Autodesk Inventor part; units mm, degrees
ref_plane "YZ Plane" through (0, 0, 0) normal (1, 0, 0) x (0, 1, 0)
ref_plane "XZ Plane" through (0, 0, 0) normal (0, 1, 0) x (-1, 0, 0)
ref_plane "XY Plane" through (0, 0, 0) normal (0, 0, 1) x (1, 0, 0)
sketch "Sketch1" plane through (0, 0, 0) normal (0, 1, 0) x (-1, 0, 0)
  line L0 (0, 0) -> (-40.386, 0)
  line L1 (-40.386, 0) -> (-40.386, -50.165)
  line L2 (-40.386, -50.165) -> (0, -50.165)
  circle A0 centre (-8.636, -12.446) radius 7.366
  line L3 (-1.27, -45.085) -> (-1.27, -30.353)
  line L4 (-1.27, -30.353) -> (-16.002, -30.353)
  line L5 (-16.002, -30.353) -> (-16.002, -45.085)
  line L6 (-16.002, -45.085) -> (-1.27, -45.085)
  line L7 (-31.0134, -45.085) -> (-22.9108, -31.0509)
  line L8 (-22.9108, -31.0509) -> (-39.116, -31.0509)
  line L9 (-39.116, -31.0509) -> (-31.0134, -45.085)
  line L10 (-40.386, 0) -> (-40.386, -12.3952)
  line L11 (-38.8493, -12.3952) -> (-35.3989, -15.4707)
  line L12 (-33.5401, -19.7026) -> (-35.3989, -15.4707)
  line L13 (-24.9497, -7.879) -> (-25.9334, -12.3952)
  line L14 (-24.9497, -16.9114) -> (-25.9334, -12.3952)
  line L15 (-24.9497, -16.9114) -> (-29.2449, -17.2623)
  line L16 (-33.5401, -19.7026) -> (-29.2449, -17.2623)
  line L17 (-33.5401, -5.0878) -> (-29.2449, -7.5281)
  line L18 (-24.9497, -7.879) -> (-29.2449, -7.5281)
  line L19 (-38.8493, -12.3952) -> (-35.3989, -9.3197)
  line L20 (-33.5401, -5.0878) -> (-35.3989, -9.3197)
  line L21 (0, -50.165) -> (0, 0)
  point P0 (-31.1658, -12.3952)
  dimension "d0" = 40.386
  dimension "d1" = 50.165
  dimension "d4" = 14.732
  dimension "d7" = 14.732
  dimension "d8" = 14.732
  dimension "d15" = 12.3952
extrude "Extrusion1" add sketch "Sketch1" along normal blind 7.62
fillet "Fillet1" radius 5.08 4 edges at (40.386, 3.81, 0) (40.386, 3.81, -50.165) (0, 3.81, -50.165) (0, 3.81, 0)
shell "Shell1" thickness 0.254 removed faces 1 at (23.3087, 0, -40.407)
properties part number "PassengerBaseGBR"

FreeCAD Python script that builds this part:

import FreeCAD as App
import Part
import Sketcher
Q = App.Units.Quantity


def edges_at(feature, points):
    """Names of the edges that pass closest to the given points."""
    edges = feature.Shape.Edges
    near = lambda p: min(range(len(edges)), key=lambda i: edges[i].distToShape(Part.Vertex(*p))[0])
    return sorted({f"Edge{near(p) + 1}" for p in points})


def faces_at(feature, points):
    """Names of the faces that lie closest to the given points."""
    faces = feature.Shape.Faces
    near = lambda p: min(range(len(faces)), key=lambda i: faces[i].distToShape(Part.Vertex(*p))[0])
    return sorted({f"Face{near(p) + 1}" for p in points})

doc = App.newDocument("Part")
params = doc.addObject("Spreadsheet::Sheet", "Params")
for row, (alias, value) in enumerate([
    ("sketch1_diameter", "0.58 in"),
    ("sketch1_width", "1.59 in"),
    ("sketch1_width2", "0.58 in"),
    ("sketch1_height", "1.975 in"),
    ("sketch1_width3", "0.638 in"),
    ("pad1_length", "0.3 in"),
    ("fillet_radius", "0.2 in"),
    ("thickness_wall", "0.01 in"),
], start=1):
    params.set(f"A{row}", alias)
    params.set(f"B{row}", "=" + value)
    params.setAlias(f"B{row}", alias)

body = doc.addObject("PartDesign::Body", "Body")

# Sketch on XZ plane
sketch1 = body.newObject("Sketcher::SketchObject", "Sketch")
sketch1.AttachmentSupport = (doc.getObject("XZ_Plane"), [""])
sketch1.MapMode = "FlatFace"
sketch1.addGeometry(Part.LineSegment(App.Vector(0, -50.2, 0), App.Vector(0, 0, 0)), False)
sketch1.addGeometry(Part.LineSegment(App.Vector(0, 0, 0), App.Vector(40.4, 0, 0)), False)
sketch1.addGeometry(Part.LineSegment(App.Vector(40.4, 0, 0), App.Vector(40.4, -50.2, 0)), False)
sketch1.addGeometry(Part.LineSegment(App.Vector(40.4, -50.2, 0), App.Vector(0, -50.2, 0)), False)
sketch1.addGeometry(Part.LineSegment(App.Vector(22.9, -31.1, 0), App.Vector(31, -45.1, 0)), False)
sketch1.addGeometry(Part.LineSegment(App.Vector(31, -45.1, 0), App.Vector(39.1, -31.1, 0)), False)
sketch1.addGeometry(Part.LineSegment(App.Vector(39.1, -31.1, 0), App.Vector(22.9, -31.1, 0)), False)
sketch1.addGeometry(Part.LineSegment(App.Vector(1.3, -30.4, 0), App.Vector(1.3, -45.1, 0)), False)
sketch1.addGeometry(Part.LineSegment(App.Vector(1.3, -45.1, 0), App.Vector(16, -45.1, 0)), False)
sketch1.addGeometry(Part.LineSegment(App.Vector(16, -45.1, 0), App.Vector(16, -30.4, 0)), False)
sketch1.addGeometry(Part.LineSegment(App.Vector(16, -30.4, 0), App.Vector(1.3, -30.4, 0)), False)
sketch1.addGeometry(Part.LineSegment(App.Vector(35.4, -15.5, 0), App.Vector(38.8, -12.4, 0)), False)
sketch1.addGeometry(Part.LineSegment(App.Vector(38.8, -12.4, 0), App.Vector(35.4, -9.3, 0)), False)
sketch1.addGeometry(Part.LineSegment(App.Vector(35.4, -9.3, 0), App.Vector(33.5, -5.1, 0)), False)
sketch1.addGeometry(Part.LineSegment(App.Vector(33.5, -5.1, 0), App.Vector(29.2, -7.5, 0)), False)
sketch1.addGeometry(Part.LineSegment(App.Vector(29.2, -7.5, 0), App.Vector(24.9, -7.9, 0)), False)
sketch1.addGeometry(Part.LineSegment(App.Vector(24.9, -7.9, 0), App.Vector(25.9, -12.4, 0)), False)
sketch1.addGeometry(Part.LineSegment(App.Vector(25.9, -12.4, 0), App.Vector(24.9, -16.9, 0)), False)
sketch1.addGeometry(Part.LineSegment(App.Vector(24.9, -16.9, 0), App.Vector(29.2, -17.3, 0)), False)
sketch1.addGeometry(Part.LineSegment(App.Vector(29.2, -17.3, 0), App.Vector(33.5, -19.7, 0)), False)
sketch1.addGeometry(Part.LineSegment(App.Vector(33.5, -19.7, 0), App.Vector(35.4, -15.5, 0)), False)
sketch1.addGeometry(Part.Circle(App.Vector(8.6, -12.4, 0), App.Vector(0, 0, 1), 7.4), False)
sketch1.addConstraint(Sketcher.Constraint("Coincident", 0, 2, 1, 1))
sketch1.addConstraint(Sketcher.Constraint("Coincident", 1, 2, 2, 1))
sketch1.addConstraint(Sketcher.Constraint("Coincident", 2, 2, 3, 1))
sketch1.addConstraint(Sketcher.Constraint("Coincident", 3, 2, 0, 1))
sketch1.addConstraint(Sketcher.Constraint("Coincident", 4, 2, 5, 1))
sketch1.addConstraint(Sketcher.Constraint("Coincident", 5, 2, 6, 1))
sketch1.addConstraint(Sketcher.Constraint("Coincident", 6, 2, 4, 1))
sketch1.addConstraint(Sketcher.Constraint("Coincident", 7, 2, 8, 1))
sketch1.addConstraint(Sketcher.Constraint("Coincident", 8, 2, 9, 1))
sketch1.addConstraint(Sketcher.Constraint("Coincident", 9, 2, 10, 1))
sketch1.addConstraint(Sketcher.Constraint("Coincident", 10, 2, 7, 1))
sketch1.addConstraint(Sketcher.Constraint("Coincident", 11, 2, 12, 1))
sketch1.addConstraint(Sketcher.Constraint("Coincident", 12, 2, 13, 1))
sketch1.addConstraint(Sketcher.Constraint("Coincident", 13, 2, 14, 1))
sketch1.addConstraint(Sketcher.Constraint("Coincident", 14, 2, 15, 1))
sketch1.addConstraint(Sketcher.Constraint("Coincident", 15, 2, 16, 1))
sketch1.addConstraint(Sketcher.Constraint("Coincident", 16, 2, 17, 1))
sketch1.addConstraint(Sketcher.Constraint("Coincident", 17, 2, 18, 1))
sketch1.addConstraint(Sketcher.Constraint("Coincident", 18, 2, 19, 1))
sketch1.addConstraint(Sketcher.Constraint("Coincident", 19, 2, 20, 1))
sketch1.addConstraint(Sketcher.Constraint("Coincident", 20, 2, 11, 1))
sketch1.addConstraint(Sketcher.Constraint("Vertical", 0))
sketch1.addConstraint(Sketcher.Constraint("Horizontal", 1))
sketch1.addConstraint(Sketcher.Constraint("Vertical", 2))
sketch1.addConstraint(Sketcher.Constraint("Horizontal", 3))
sketch1.addConstraint(Sketcher.Constraint("Horizontal", 6))
sketch1.addConstraint(Sketcher.Constraint("Vertical", 7))
sketch1.addConstraint(Sketcher.Constraint("Horizontal", 8))
sketch1.addConstraint(Sketcher.Constraint("Vertical", 9))
sketch1.addConstraint(Sketcher.Constraint("Horizontal", 10))
sketch1.addConstraint(Sketcher.Constraint("Coincident", 0, 2, -1, 1))
sketch1.addConstraint(Sketcher.Constraint("Horizontal", 4, 2, 7, 2))
sketch1.addConstraint(Sketcher.Constraint("Horizontal", 11, 2, 16, 2))
sketch1.addConstraint(Sketcher.Constraint("Vertical", 15, 2, 17, 2))
sketch1.addConstraint(Sketcher.Constraint("Vertical", 14, 2, 18, 2))
sketch1.addConstraint(Sketcher.Constraint("Vertical", 13, 2, 19, 2))
sketch1.addConstraint(Sketcher.Constraint("Vertical", 12, 2, 20, 2))
sketch1.addConstraint(Sketcher.Constraint("Equal", 10, 7))
sketch1.addConstraint(Sketcher.Constraint("Equal", 4, 5))
sketch1.addConstraint(Sketcher.Constraint("Equal", 11, 12))
sketch1.addConstraint(Sketcher.Constraint("Equal", 12, 13))
sketch1.addConstraint(Sketcher.Constraint("Equal", 13, 16))
sketch1.addConstraint(Sketcher.Constraint("Equal", 16, 17))
sketch1.addConstraint(Sketcher.Constraint("Equal", 15, 18))
sketch1.addConstraint(Sketcher.Constraint("Equal", 14, 19))
sketch1.addConstraint(Sketcher.Constraint("Diameter", 21, Q("0.58 in")))
sketch1.addConstraint(Sketcher.Constraint("DistanceX", 1, 1, 1, 2, Q("1.59 in")))
sketch1.addConstraint(Sketcher.Constraint("DistanceX", 8, 1, 8, 2, Q("0.58 in")))
sketch1.addConstraint(Sketcher.Constraint("DistanceY", 0, 1, 0, 2, Q("1.975 in")))
sketch1.addConstraint(Sketcher.Constraint("DistanceY", 11, 2, -1, 1, Q("0.488 in")))
sketch1.addConstraint(Sketcher.Constraint("Angle", 4, Q("-60 deg")))
sketch1.addConstraint(Sketcher.Constraint("DistanceY", 2, 2, 4, 2, Q("0.2 in")))
sketch1.addConstraint(Sketcher.Constraint("DistanceX", 21, 3, 5, 2, Q("1.2 in")))
sketch1.addConstraint(Sketcher.Constraint("DistanceX", 6, 2, 6, 1, Q("0.638 in")))
sketch1.addConstraint(Sketcher.Constraint("DistanceX", -1, 1, 21, 3, Q("0.34 in")))
sketch1.addConstraint(Sketcher.Constraint("DistanceY", 21, 3, -1, 1, Q("0.49 in")))
sketch1.addConstraint(Sketcher.Constraint("DistanceX", -1, 1, 7, 2, Q("0.05 in")))
sketch1.addConstraint(Sketcher.Constraint("Angle", 15, Q("-175.3295 deg")))
sketch1.addConstraint(Sketcher.Constraint("DistanceX", -1, 1, 16, 2, Q("1.021 in")))
sketch1.addConstraint(Sketcher.Constraint("Distance", 14, Q("0.1945 in")))
sketch1.addConstraint(Sketcher.Constraint("DistanceX", -1, 1, 11, 2, Q("1.5295 in")))
sketch1.addConstraint(Sketcher.Constraint("DistanceY", 13, 2, -1, 1, Q("0.2003 in")))
sketch1.addConstraint(Sketcher.Constraint("DistanceY", 15, 2, -1, 1, Q("0.3102 in")))
sketch1.addConstraint(Sketcher.Constraint("DistanceY", 12, 2, 13, 2, Q("0.1666 in")))
sketch1.addConstraint(Sketcher.Constraint("DistanceX", 15, 2, 14, 2, Q("0.1691 in")))
sketch1.setExpression("Constraints[45]", "Params.sketch1_diameter")
sketch1.setExpression("Constraints[46]", "Params.sketch1_width")
sketch1.setExpression("Constraints[47]", "Params.sketch1_width2")
sketch1.setExpression("Constraints[48]", "Params.sketch1_height")
sketch1.setExpression("Constraints[53]", "Params.sketch1_width3")
pad1 = body.newObject("PartDesign::Pad", "Pad")
pad1.Profile = sketch1
pad1.setExpression("Length", "Params.pad1_length")
pad1.Reversed = True
doc.recompute()

fillet = body.newObject("PartDesign::Fillet", "Fillet")
fillet.Base = (pad1, edges_at(pad1, [
    (40.386, 3.81, 0),
    (40.386, 3.81, -50.165),
    (0, 3.81, -50.165),
    (0, 3.81, 0),
]))
fillet.setExpression("Radius", "Params.fillet_radius")
doc.recompute()

thickness = body.newObject("PartDesign::Thickness", "Thickness")
thickness.Base = (fillet, faces_at(fillet, [(23.309, 0, -40.407)]))
thickness.setExpression("Value", "Params.thickness_wall")
thickness.Reversed = True
thickness.Join = "Intersection"

doc.recompute()
